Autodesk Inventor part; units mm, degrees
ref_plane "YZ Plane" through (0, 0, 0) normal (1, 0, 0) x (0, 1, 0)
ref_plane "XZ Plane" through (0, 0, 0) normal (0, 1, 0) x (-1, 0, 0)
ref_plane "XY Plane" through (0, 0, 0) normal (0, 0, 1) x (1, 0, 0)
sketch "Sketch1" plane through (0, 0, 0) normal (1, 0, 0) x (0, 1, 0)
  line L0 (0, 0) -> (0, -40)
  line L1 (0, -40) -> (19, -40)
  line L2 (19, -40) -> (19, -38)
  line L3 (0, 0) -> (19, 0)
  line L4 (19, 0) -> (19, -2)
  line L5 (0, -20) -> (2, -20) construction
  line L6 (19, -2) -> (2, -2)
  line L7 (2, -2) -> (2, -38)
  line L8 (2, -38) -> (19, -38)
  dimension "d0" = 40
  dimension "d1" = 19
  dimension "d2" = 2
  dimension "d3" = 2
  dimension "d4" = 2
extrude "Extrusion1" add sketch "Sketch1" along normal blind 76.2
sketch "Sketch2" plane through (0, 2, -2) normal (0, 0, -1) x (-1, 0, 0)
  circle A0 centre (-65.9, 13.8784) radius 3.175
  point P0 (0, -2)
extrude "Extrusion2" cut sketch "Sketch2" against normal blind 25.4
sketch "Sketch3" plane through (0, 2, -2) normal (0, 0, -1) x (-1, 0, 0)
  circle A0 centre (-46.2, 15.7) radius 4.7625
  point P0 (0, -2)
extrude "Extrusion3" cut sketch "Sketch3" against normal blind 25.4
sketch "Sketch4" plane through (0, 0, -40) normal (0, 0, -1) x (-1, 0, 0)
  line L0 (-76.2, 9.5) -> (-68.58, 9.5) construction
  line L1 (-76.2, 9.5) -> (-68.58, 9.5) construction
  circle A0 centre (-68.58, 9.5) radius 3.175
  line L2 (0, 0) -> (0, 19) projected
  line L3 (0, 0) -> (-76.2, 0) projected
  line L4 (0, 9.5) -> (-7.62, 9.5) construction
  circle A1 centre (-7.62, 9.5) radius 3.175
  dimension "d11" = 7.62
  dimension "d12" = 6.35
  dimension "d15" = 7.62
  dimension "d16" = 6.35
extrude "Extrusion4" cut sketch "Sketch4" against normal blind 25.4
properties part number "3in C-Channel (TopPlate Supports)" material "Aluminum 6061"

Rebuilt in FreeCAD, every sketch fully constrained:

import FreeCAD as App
import Part
import Sketcher
Q = App.Units.Quantity

doc = App.newDocument("Part")
params = doc.addObject("Spreadsheet::Sheet", "Params")
for row, (alias, value) in enumerate([
    ("pad1_length", "3 in"),
    ("sketch2_diameter", "0.25 in"),
    ("pocket1_length", "1 in"),
    ("sketch3_diameter", "0.375 in"),
    ("pocket2_length", "1 in"),
    ("sketch4_diameter", "0.25 in"),
    ("pocket3_length", "1 in"),
], start=1):
    params.set(f"A{row}", alias)
    params.set(f"B{row}", "=" + value)
    params.setAlias(f"B{row}", alias)

body = doc.addObject("PartDesign::Body", "Body")

sketch1 = body.newObject("Sketcher::SketchObject", "Sketch")
sketch1.AttachmentSupport = (doc.getObject("YZ_Plane"), [""])
sketch1.MapMode = "FlatFace"
sketch1.addGeometry([
    Part.LineSegment(App.Vector(19, 0, 0), App.Vector(0, 0, 0)),
    Part.LineSegment(App.Vector(0, 0, 0), App.Vector(0, -40, 0)),
    Part.LineSegment(App.Vector(0, -40, 0), App.Vector(19, -40, 0)),
    Part.LineSegment(App.Vector(19, -40, 0), App.Vector(19, -38, 0)),
    Part.LineSegment(App.Vector(19, -38, 0), App.Vector(2, -38, 0)),
    Part.LineSegment(App.Vector(2, -38, 0), App.Vector(2, -2, 0)),
    Part.LineSegment(App.Vector(2, -2, 0), App.Vector(19, -2, 0)),
    Part.LineSegment(App.Vector(19, -2, 0), App.Vector(19, 0, 0)),
], False)
sketch1.addConstraint([
    Sketcher.Constraint("Coincident", 0, 2, 1, 1),
    Sketcher.Constraint("Coincident", 1, 2, 2, 1),
    Sketcher.Constraint("Coincident", 2, 2, 3, 1),
    Sketcher.Constraint("Coincident", 3, 2, 4, 1),
    Sketcher.Constraint("Coincident", 4, 2, 5, 1),
    Sketcher.Constraint("Coincident", 5, 2, 6, 1),
    Sketcher.Constraint("Coincident", 6, 2, 7, 1),
    Sketcher.Constraint("Coincident", 7, 2, 0, 1),
    Sketcher.Constraint("Horizontal", 0),
    Sketcher.Constraint("Vertical", 1),
    Sketcher.Constraint("Horizontal", 2),
    Sketcher.Constraint("Vertical", 3),
    Sketcher.Constraint("Horizontal", 4),
    Sketcher.Constraint("Vertical", 5),
    Sketcher.Constraint("Horizontal", 6),
    Sketcher.Constraint("Vertical", 7),
    Sketcher.Constraint("Coincident", 0, 2, -1, 1),
    Sketcher.Constraint("Vertical", 3, 2, 6, 2),
    Sketcher.Constraint("Equal", 3, 7),
    Sketcher.Constraint("DistanceY", 1, 2, 1, 1, Q("1.5748 in")),
    Sketcher.Constraint("DistanceX", 0, 2, 0, 1, Q("19 mm")),
    Sketcher.Constraint("DistanceY", 3, 1, 3, 2, Q("2 mm")),
    Sketcher.Constraint("DistanceX", -1, 1, 4, 2, Q("2 mm")),
])
pad1 = body.newObject("PartDesign::Pad", "Pad")
pad1.Profile = sketch1
pad1.setExpression("Length", "Params.pad1_length")

sketch2 = body.newObject("Sketcher::SketchObject", "Sketch001")
sketch2.AttachmentSupport = (doc.getObject("XY_Plane"), [""])
sketch2.MapMode = "FlatFace"
sketch2.AttachmentOffset = App.Placement(App.Vector(0, 0, -2), App.Rotation())
sketch2.addGeometry(Part.Circle(App.Vector(65.9, 15.9, 0), App.Vector(0, 0, 1), 3.2), False)
sketch2.addConstraint([
    Sketcher.Constraint("Diameter", 0, Q("0.25 in")),
    Sketcher.Constraint("DistanceX", -1, 1, 0, 3, Q("2.5945 in")),
    Sketcher.Constraint("DistanceY", -1, 1, 0, 3, Q("15.8784 mm")),
])
sketch2.setExpression("Constraints[0]", "Params.sketch2_diameter")
pocket1 = body.newObject("PartDesign::Pocket", "Pocket")
pocket1.Profile = sketch2
pocket1.setExpression("Length", "Params.pocket1_length")
pocket1.Reversed = True

sketch3 = body.newObject("Sketcher::SketchObject", "Sketch002")
sketch3.AttachmentSupport = (doc.getObject("XY_Plane"), [""])
sketch3.MapMode = "FlatFace"
sketch3.AttachmentOffset = App.Placement(App.Vector(0, 0, -2), App.Rotation())
sketch3.addGeometry(Part.Circle(App.Vector(46.2, 17.7, 0), App.Vector(0, 0, 1), 4.8), False)
sketch3.addConstraint([
    Sketcher.Constraint("Diameter", 0, Q("0.375 in")),
    Sketcher.Constraint("DistanceX", -1, 1, 0, 3, Q("1.8189 in")),
    Sketcher.Constraint("DistanceY", -1, 1, 0, 3, Q("17.7 mm")),
])
sketch3.setExpression("Constraints[0]", "Params.sketch3_diameter")
pocket2 = body.newObject("PartDesign::Pocket", "Pocket001")
pocket2.Profile = sketch3
pocket2.setExpression("Length", "Params.pocket2_length")
pocket2.Reversed = True

sketch4 = body.newObject("Sketcher::SketchObject", "Sketch003")
sketch4.AttachmentSupport = (doc.getObject("XY_Plane"), [""])
sketch4.MapMode = "FlatFace"
sketch4.AttachmentOffset = App.Placement(App.Vector(0, 0, -1.5748031 * 25.4), App.Rotation())
sketch4.addGeometry([
    Part.Circle(App.Vector(68.6, 9.5, 0), App.Vector(0, 0, 1), 3.2),
    Part.Circle(App.Vector(7.6, 9.5, 0), App.Vector(0, 0, 1), 3.2),
], False)
sketch4.addConstraint([
    Sketcher.Constraint("Equal", 0, 1),
    Sketcher.Constraint("Horizontal", 0, 3, 1, 3),
    Sketcher.Constraint("Diameter", 0, Q("0.25 in")),
    Sketcher.Constraint("DistanceX", -1, 1, 1, 3, Q("0.3 in")),
    Sketcher.Constraint("DistanceX", -1, 1, 0, 3, Q("2.7 in")),
    Sketcher.Constraint("DistanceY", -1, 1, 0, 3, Q("9.5 mm")),
])
sketch4.setExpression("Constraints[2]", "Params.sketch4_diameter")
pocket3 = body.newObject("PartDesign::Pocket", "Pocket002")
pocket3.Profile = sketch4
pocket3.setExpression("Length", "Params.pocket3_length")
pocket3.Reversed = True

doc.recompute()
